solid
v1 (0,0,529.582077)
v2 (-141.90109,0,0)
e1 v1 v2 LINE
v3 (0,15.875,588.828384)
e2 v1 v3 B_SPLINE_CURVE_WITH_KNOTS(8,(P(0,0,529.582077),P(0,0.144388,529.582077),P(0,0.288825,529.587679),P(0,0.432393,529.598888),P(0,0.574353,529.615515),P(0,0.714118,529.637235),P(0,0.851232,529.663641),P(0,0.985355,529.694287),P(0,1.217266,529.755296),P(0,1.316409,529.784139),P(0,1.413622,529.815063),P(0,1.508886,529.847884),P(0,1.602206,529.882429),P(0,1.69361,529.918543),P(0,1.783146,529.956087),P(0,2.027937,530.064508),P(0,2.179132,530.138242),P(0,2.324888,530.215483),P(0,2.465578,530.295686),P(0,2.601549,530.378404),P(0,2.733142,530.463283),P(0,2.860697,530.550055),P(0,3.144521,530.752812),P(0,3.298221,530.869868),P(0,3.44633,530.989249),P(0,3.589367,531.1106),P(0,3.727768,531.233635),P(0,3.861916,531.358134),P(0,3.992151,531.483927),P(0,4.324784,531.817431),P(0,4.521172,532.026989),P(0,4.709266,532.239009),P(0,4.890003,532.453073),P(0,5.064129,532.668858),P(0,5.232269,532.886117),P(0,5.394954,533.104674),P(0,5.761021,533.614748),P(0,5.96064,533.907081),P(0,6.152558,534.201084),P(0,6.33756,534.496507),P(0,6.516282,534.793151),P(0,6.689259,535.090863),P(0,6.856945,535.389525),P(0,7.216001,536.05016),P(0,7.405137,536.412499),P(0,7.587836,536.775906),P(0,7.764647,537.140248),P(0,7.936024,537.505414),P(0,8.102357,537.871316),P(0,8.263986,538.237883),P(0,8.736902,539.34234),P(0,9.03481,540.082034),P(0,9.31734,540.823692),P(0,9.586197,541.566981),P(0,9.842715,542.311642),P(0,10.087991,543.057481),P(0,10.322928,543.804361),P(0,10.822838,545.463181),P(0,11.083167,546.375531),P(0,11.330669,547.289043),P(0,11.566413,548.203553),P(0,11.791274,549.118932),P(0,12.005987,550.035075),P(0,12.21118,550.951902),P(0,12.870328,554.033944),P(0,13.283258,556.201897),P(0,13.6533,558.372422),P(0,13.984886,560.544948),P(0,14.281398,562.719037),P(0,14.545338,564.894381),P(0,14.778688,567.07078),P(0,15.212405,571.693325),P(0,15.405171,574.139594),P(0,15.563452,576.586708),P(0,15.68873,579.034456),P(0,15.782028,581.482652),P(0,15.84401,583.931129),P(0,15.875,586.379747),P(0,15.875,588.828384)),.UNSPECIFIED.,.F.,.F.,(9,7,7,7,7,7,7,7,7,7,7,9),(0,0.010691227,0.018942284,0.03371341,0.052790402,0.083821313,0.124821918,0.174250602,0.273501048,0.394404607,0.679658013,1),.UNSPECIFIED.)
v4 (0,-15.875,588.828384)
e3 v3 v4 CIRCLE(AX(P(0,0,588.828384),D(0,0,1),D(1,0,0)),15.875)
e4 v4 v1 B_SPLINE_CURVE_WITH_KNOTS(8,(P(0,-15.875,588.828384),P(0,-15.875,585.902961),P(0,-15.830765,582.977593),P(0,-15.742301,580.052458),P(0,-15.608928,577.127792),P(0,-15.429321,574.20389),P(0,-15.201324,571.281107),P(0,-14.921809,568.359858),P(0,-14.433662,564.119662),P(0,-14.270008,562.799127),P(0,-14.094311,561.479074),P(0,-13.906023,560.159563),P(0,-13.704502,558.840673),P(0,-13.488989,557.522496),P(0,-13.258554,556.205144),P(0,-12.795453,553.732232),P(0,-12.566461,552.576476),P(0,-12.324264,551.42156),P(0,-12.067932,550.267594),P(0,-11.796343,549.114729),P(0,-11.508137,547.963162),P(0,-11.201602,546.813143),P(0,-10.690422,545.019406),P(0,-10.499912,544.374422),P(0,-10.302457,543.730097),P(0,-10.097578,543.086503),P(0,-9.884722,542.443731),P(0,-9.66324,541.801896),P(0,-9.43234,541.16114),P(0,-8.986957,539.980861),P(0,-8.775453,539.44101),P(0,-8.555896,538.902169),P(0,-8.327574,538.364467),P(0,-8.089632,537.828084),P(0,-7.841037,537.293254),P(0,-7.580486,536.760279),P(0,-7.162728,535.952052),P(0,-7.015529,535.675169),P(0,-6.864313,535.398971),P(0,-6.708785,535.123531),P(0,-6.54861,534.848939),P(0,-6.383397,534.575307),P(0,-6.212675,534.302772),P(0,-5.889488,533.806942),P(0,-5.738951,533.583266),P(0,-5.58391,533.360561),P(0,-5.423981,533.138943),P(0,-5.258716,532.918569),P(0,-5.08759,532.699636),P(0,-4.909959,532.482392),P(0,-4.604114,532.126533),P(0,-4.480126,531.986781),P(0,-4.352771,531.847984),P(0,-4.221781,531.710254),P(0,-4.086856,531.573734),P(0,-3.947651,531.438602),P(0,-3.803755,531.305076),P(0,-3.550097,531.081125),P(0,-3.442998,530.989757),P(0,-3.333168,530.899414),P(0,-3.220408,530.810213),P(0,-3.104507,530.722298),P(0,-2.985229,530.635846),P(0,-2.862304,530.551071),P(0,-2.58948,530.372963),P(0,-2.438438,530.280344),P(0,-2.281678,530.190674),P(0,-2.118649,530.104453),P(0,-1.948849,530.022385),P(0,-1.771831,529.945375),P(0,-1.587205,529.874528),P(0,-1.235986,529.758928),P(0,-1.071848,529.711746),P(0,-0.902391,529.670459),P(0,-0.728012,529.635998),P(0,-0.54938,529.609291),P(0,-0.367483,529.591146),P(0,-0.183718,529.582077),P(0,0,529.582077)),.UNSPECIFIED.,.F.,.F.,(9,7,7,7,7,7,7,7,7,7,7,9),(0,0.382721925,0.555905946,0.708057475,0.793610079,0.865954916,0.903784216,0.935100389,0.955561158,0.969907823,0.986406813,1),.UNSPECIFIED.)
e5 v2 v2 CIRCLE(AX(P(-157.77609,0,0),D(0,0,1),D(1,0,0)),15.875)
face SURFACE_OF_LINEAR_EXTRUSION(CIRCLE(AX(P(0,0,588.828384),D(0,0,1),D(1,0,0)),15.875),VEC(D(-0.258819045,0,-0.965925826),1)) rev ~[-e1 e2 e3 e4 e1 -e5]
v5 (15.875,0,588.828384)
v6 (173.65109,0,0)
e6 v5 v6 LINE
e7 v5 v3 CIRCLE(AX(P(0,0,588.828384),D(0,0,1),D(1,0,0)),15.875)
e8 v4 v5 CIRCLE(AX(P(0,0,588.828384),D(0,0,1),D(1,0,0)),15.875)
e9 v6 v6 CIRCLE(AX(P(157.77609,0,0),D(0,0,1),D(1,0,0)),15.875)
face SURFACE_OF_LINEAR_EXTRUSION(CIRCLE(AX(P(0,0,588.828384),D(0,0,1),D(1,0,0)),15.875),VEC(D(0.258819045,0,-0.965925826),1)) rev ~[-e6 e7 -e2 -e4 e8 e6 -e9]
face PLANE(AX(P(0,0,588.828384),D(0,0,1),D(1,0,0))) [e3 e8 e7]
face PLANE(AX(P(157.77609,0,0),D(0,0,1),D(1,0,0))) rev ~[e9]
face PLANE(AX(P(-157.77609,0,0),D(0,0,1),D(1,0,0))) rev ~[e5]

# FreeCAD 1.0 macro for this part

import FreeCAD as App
import Part
import Sketcher

V = App.Vector
Q = App.Units.Quantity

doc = App.newDocument("Part")
body = doc.addObject("PartDesign::Body", "Body")

sketch1 = doc.addObject("Sketcher::SketchObject", "Sketch")
body.addObject(sketch1)
sketch1.AttachmentSupport = (doc.XY_Plane, [""])
sketch1.MapMode = "FlatFace"
sketch1.addGeometry(Part.Circle(V(158, 0, 0), V(0, 0, 1), 16), False)
sketch1.addConstraint(Sketcher.Constraint("PointOnObject", 0, 3, -1))
sketch1.addConstraint(Sketcher.Constraint("Diameter", 0, Q("1.25 in")))
sketch1.addConstraint(Sketcher.Constraint("DistanceX", -1, 1, 0, 3, 157.77609))

sketch2 = doc.addObject("Sketcher::SketchObject", "Sketch001")
body.addObject(sketch2)
sketch2.Placement = App.Placement(V(147.207096, 0, 39.444023), App.Rotation(V(0.258819045, 0, -0.965925826), V(0, 0.999999999, 0), V(0.965925826, 0, 0.258819045), "ZXY"))
sketch2.addGeometry(Part.LineSegment(V(-569, 0, 0), V(41, 0, 0)), False)
sketch2.addConstraint(Sketcher.Constraint("Horizontal", 0))
sketch2.addConstraint(Sketcher.Constraint("PointOnObject", 0, 1, -1))
sketch2.addConstraint(Sketcher.Constraint("DistanceX", 0, 1, 0, 2, Q("24 in")))
sketch2.addConstraint(Sketcher.Constraint("DistanceX", 0, 1, -1, 1, 568.764543))
doc.recompute()

additivepipe = doc.addObject("PartDesign::AdditivePipe", "AdditivePipe")
body.addObject(additivepipe)
additivepipe.Profile = sketch1
additivepipe.Spine = (sketch2, ["Edge1"])

sketch3 = doc.addObject("Sketcher::SketchObject", "Sketch002")
body.addObject(sketch3)
sketch3.AttachmentSupport = (doc.XY_Plane, [""])
sketch3.MapMode = "FlatFace"
sketch3.addGeometry(Part.Circle(V(-158, 0, 0), V(0, 0, 1), 16), False)
sketch3.addConstraint(Sketcher.Constraint("PointOnObject", 0, 3, -1))
sketch3.addConstraint(Sketcher.Constraint("Diameter", 0, Q("1.25 in")))
sketch3.addConstraint(Sketcher.Constraint("DistanceX", 0, 3, -1, 1, 157.77609))

sketch4 = doc.addObject("Sketcher::SketchObject", "Sketch003")
body.addObject(sketch4)
sketch4.Placement = App.Placement(V(-147.207096, 0, 39.444023), App.Rotation(V(-0.258819045, 0, -0.965925826), V(0, 0.999999999, 0), V(0.965925826, 0, -0.258819045), "ZXY"))
sketch4.addGeometry(Part.LineSegment(V(-569, 0, 0), V(41, 0, 0)), False)
sketch4.addConstraint(Sketcher.Constraint("Horizontal", 0))
sketch4.addConstraint(Sketcher.Constraint("PointOnObject", 0, 1, -1))
sketch4.addConstraint(Sketcher.Constraint("DistanceX", 0, 1, 0, 2, Q("24 in")))
sketch4.addConstraint(Sketcher.Constraint("DistanceX", 0, 1, -1, 1, 568.764543))
doc.recompute()

additivepipe2 = doc.addObject("PartDesign::AdditivePipe", "AdditivePipe001")
body.addObject(additivepipe2)
additivepipe2.Profile = sketch3
additivepipe2.Spine = (sketch4, ["Edge1"])

doc.recompute()
